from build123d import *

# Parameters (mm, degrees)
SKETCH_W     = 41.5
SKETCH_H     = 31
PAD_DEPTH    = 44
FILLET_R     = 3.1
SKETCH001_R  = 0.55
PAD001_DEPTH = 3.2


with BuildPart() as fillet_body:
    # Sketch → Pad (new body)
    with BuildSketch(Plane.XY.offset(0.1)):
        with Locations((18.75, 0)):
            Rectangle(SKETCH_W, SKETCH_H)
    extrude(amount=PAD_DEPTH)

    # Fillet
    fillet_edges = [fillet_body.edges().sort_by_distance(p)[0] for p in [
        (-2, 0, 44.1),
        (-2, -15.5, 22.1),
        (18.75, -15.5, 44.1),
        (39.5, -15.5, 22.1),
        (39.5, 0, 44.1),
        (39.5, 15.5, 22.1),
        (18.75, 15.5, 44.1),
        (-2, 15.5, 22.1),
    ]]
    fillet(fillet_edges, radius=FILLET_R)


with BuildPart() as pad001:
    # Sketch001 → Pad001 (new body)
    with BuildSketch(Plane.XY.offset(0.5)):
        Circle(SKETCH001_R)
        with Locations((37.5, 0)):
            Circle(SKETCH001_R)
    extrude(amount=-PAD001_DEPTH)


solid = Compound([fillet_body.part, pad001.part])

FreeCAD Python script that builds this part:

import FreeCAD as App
import Part
import Sketcher
Q = App.Units.Quantity


def edges_at(feature, points):
    """Names of the edges that pass closest to the given points."""
    edges = feature.Shape.Edges
    near = lambda p: min(range(len(edges)), key=lambda i: edges[i].distToShape(Part.Vertex(*p))[0])
    return sorted({f"Edge{near(p) + 1}" for p in points})


def add_polygon(sketch, points):
    """Adds a closed chain of lines whose ends are joined by coincident constraints."""
    first, n = sketch.GeometryCount, len(points)
    for a, b in zip(points, points[1:] + points[:1]):
        sketch.addGeometry(Part.LineSegment(App.Vector(*a, 0), App.Vector(*b, 0)), False)
    for i in range(n):
        sketch.addConstraint(Sketcher.Constraint("Coincident", first + i, 2, first + (i + 1) % n, 1))

doc = App.newDocument("Part")
body = doc.addObject("PartDesign::Body", "Body")

# Sketch on XY plane
sketch1 = body.newObject("Sketcher::SketchObject", "Sketch")
sketch1.AttachmentSupport = (doc.getObject("XY_Plane"), [""])
sketch1.MapMode = "FlatFace"
sketch1.AttachmentOffset = App.Placement(App.Vector(0, 0, 0.1), App.Rotation())
add_polygon(sketch1, [(-2, 15.5), (-2, -15.5), (39.5, -15.5), (39.5, 15.5)])  # lines 0-3
sketch1.addConstraint([
    Sketcher.Constraint("Vertical", 0),
    Sketcher.Constraint("Horizontal", 1),
    Sketcher.Constraint("Vertical", 2),
    Sketcher.Constraint("Horizontal", 3),
    Sketcher.Constraint("DistanceY", 0, 2, 0, 1, Q("31 mm")),
    Sketcher.Constraint("DistanceX", 1, 1, 1, 2, Q("41.5 mm")),
    Sketcher.Constraint("DistanceX", 0, 2, -1, 1, Q("2 mm")),
    Sketcher.Constraint("DistanceY", 0, 2, -1, 1, Q("15.5 mm")),
])
pad1 = body.newObject("PartDesign::Pad", "Pad")
pad1.Profile = sketch1
pad1.Length = 44
doc.recompute()

fillet = body.newObject("PartDesign::Fillet", "Fillet")
fillet.Base = (pad1, edges_at(pad1, [
    (-2, 0, 44.1),
    (-2, -15.5, 22.1),
    (18.75, -15.5, 44.1),
    (39.5, -15.5, 22.1),
    (39.5, 0, 44.1),
    (39.5, 15.5, 22.1),
    (18.75, 15.5, 44.1),
    (-2, 15.5, 22.1),
]))
fillet.Radius = 3.1
body2 = doc.addObject("PartDesign::Body", "Body001")
body2.AllowCompound = True

# Sketch on XY plane
sketch2 = body2.newObject("Sketcher::SketchObject", "Sketch001")
sketch2.AttachmentSupport = (doc.getObject("XY_Plane001"), [""])
sketch2.MapMode = "FlatFace"
sketch2.AttachmentOffset = App.Placement(App.Vector(0, 0, 0.5), App.Rotation())
sketch2.addGeometry([
    Part.Circle(App.Vector(0, 0, 0), App.Vector(0, 0, 1), 0.55),
    Part.Circle(App.Vector(37.5, 0, 0), App.Vector(0, 0, 1), 0.55),
], False)
sketch2.addConstraint([
    Sketcher.Constraint("Coincident", 0, 3, -1, 1),
    Sketcher.Constraint("Equal", 0, 1),
    Sketcher.Constraint("PointOnObject", 1, 3, -1),
    Sketcher.Constraint("Diameter", 0, Q("1.1 mm")),
    Sketcher.Constraint("DistanceX", -1, 1, 1, 3, Q("37.5 mm")),
])
pad2 = body2.newObject("PartDesign::Pad", "Pad001")
pad2.Profile = sketch2
pad2.Length = 3.2
pad2.Reversed = True

doc.recompute()
